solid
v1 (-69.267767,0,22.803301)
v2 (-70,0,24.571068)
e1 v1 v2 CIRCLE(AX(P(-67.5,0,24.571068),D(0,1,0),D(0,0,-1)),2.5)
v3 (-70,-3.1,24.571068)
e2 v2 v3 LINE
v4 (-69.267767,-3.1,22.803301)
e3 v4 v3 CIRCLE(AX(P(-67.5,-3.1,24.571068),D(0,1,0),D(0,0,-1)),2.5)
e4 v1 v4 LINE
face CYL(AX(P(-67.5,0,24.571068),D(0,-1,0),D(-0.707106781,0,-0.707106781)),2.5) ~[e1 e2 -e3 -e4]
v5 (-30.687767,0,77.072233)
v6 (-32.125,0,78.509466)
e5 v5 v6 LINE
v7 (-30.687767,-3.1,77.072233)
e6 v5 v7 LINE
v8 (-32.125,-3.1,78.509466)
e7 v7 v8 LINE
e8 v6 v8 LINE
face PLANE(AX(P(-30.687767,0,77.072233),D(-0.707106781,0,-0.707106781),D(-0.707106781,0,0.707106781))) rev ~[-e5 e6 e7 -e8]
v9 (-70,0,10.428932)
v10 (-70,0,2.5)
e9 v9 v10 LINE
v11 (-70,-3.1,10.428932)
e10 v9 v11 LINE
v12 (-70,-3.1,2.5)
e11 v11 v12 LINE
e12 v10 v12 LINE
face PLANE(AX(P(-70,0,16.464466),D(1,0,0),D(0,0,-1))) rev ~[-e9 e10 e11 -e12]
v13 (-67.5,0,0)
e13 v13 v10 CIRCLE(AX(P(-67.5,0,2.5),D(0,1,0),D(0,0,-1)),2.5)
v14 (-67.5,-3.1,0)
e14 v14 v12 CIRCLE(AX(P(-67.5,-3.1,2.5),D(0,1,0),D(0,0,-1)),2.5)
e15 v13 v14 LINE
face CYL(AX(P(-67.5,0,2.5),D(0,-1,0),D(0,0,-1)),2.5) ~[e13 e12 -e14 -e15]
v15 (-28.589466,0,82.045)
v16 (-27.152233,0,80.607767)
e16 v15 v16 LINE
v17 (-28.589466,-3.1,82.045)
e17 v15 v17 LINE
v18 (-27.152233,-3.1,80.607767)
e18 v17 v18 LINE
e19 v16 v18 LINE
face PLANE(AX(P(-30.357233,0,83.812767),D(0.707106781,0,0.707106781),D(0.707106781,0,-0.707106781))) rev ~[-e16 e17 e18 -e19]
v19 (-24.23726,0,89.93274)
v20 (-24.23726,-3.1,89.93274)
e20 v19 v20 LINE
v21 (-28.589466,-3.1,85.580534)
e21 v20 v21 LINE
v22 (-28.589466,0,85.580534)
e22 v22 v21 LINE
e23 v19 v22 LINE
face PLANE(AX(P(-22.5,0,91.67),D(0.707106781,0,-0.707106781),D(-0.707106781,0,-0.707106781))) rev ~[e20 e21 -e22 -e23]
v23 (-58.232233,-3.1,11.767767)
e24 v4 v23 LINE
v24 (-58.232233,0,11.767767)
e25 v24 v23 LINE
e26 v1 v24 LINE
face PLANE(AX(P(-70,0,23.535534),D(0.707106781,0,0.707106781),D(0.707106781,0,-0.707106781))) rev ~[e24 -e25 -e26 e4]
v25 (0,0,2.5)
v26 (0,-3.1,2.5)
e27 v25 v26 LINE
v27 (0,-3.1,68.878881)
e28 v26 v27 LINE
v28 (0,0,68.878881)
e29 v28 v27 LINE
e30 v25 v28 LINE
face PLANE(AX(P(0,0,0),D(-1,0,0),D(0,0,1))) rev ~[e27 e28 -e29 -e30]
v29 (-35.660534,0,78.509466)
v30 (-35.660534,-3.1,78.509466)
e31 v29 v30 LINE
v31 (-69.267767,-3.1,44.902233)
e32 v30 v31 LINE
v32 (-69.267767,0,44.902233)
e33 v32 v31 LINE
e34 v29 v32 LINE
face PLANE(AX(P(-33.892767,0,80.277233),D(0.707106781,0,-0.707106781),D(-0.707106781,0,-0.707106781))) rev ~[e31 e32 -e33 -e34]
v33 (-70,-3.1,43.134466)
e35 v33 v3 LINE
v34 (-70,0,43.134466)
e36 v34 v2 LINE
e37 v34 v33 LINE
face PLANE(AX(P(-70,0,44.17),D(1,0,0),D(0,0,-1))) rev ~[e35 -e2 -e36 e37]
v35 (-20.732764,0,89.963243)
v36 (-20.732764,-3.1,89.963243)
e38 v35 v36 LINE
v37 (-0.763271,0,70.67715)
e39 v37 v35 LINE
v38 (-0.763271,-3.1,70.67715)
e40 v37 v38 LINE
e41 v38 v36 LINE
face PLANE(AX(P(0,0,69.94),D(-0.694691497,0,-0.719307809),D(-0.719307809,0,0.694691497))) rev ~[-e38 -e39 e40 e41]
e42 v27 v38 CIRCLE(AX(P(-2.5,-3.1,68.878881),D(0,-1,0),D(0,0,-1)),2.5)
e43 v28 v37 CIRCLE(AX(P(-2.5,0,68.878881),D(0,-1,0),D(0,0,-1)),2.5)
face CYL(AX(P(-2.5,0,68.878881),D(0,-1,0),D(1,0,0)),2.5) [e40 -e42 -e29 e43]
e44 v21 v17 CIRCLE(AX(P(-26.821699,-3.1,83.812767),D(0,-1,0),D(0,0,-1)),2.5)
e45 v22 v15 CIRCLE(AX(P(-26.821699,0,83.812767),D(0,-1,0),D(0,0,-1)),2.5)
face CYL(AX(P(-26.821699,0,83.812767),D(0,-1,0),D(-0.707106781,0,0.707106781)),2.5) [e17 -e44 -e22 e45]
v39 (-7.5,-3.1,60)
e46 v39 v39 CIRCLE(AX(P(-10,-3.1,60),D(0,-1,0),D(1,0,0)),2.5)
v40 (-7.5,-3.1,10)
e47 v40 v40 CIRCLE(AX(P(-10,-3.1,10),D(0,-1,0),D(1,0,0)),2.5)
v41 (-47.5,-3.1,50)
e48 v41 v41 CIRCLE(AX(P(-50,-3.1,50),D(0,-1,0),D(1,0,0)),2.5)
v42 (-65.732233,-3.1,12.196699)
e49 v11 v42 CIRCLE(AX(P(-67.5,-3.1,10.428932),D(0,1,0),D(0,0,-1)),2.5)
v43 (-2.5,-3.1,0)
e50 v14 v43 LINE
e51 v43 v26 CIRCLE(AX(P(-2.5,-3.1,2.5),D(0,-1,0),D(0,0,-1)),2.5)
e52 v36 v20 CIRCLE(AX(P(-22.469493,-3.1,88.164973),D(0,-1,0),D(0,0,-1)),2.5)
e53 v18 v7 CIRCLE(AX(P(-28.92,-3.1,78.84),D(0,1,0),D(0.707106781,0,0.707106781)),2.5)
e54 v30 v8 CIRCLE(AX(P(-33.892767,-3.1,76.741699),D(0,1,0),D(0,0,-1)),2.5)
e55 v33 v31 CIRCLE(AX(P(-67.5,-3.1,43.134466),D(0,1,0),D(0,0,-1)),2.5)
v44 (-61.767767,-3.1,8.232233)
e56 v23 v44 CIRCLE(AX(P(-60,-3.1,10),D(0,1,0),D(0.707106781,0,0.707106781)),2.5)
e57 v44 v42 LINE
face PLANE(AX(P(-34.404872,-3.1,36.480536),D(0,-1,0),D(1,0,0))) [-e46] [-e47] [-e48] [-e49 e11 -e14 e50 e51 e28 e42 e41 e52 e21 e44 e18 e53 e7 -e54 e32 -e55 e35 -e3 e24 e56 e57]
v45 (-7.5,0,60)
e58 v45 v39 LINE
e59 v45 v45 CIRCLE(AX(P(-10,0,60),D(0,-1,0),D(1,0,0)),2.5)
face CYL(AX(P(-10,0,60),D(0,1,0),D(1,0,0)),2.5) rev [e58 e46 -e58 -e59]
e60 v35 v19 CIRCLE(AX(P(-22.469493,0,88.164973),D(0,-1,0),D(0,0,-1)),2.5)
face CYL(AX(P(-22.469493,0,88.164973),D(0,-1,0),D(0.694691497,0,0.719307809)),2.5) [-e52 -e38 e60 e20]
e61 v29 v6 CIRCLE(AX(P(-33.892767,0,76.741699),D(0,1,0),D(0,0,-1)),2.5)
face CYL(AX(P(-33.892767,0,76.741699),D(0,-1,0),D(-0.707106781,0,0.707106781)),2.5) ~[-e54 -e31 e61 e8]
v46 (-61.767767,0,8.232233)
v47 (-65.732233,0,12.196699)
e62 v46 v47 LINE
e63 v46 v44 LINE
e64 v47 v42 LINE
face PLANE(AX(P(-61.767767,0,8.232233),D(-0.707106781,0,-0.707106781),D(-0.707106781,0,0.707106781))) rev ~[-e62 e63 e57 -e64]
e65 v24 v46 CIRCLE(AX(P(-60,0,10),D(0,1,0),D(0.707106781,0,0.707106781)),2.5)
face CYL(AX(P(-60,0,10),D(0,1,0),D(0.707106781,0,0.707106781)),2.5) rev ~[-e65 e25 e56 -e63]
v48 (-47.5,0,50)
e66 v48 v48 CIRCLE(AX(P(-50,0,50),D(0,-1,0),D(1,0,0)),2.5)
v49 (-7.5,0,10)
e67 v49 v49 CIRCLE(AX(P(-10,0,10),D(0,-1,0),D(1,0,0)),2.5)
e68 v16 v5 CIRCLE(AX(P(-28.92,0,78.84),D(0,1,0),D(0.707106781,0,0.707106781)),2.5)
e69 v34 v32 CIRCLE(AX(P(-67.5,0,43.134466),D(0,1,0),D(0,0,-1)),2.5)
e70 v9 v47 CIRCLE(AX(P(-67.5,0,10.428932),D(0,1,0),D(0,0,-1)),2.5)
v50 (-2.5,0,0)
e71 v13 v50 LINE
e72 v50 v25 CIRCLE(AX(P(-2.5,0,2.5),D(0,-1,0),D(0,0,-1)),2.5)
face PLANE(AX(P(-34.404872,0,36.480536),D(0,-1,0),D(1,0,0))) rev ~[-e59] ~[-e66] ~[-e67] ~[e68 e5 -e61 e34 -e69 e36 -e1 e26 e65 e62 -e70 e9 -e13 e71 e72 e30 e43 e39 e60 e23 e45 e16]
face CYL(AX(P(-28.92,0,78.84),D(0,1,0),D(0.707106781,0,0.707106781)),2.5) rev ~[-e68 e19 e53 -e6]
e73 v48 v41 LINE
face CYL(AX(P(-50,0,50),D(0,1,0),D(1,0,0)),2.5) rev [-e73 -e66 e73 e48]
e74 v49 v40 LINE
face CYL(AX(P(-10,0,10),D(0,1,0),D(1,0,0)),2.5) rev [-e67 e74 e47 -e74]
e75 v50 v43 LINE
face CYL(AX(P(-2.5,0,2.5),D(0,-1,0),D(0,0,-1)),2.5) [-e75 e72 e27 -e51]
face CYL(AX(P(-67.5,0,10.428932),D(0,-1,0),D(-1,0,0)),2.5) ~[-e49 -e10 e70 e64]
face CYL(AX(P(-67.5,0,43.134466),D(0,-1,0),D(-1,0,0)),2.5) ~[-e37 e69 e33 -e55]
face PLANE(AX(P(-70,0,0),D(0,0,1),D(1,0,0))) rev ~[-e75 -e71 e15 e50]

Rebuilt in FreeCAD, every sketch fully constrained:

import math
import FreeCAD as App
import Part
import Sketcher

V = App.Vector
Q = App.Units.Quantity


def edges_at(feature, points):
    """Names of the edges that pass closest to the given points."""
    edges = feature.Shape.Edges
    near = lambda p: min(range(len(edges)), key=lambda i: edges[i].distToShape(Part.Vertex(*p))[0])
    return sorted({f"Edge{near(p) + 1}" for p in points})

doc = App.newDocument("Part")
body = doc.addObject("PartDesign::Body", "Body")

# Sketch on XZ plane
sketch1 = body.newObject("Sketcher::SketchObject", "Sketch")
sketch1.AttachmentSupport = (doc.getObject("XZ_Plane"), [""])
sketch1.MapMode = "FlatFace"
sketch1.addGeometry([
    Part.LineSegment(V(-70, 0, 0), V(0, 0, 0)),  # 0
    Part.LineSegment(V(0, 0, 0), V(0, 69.9, 0)),  # 1
    Part.LineSegment(V(0, 69.9, 0), V(-22.5, 91.7, 0)),  # 2
    Part.LineSegment(V(-22.5, 91.7, 0), V(-30.4, 83.8, 0)),  # 3
    Part.LineSegment(V(-30.4, 83.8, 0), V(-27.2, 80.6, 0)),  # 4
    Part.ArcOfCircle(Part.Circle(V(-28.9, 78.8, 0), V(0, 0, 1), 2.5), math.radians(-135), math.radians(45)),  # 5
    Part.LineSegment(V(-30.7, 77.1, 0), V(-33.9, 80.3, 0)),  # 6
    Part.LineSegment(V(-33.9, 80.3, 0), V(-70, 44.2, 0)),  # 7
    Part.LineSegment(V(-70, 44.2, 0), V(-70, 23.5, 0)),  # 8
    Part.LineSegment(V(-70, 23.5, 0), V(-58.2, 11.8, 0)),  # 9
    Part.ArcOfCircle(Part.Circle(V(-60, 10, 0), V(0, 0, 1), 2.5), math.radians(-135), math.radians(45)),  # 10
    Part.LineSegment(V(-61.8, 8.2, 0), V(-70, 16.5, 0)),  # 11
    Part.LineSegment(V(-70, 16.5, 0), V(-70, 0, 0)),  # 12
    Part.Circle(V(-10, 10, 0), V(0, 0, 1), 2.5),  # 13
    Part.Circle(V(-50, 50, 0), V(0, 0, 1), 2.5),  # 14
    Part.Circle(V(-10, 60, 0), V(0, 0, 1), 2.5),  # 15
], False)
sketch1.addConstraint([
    Sketcher.Constraint("Coincident", 0, 2, 1, 1),
    Sketcher.Constraint("Coincident", 1, 2, 2, 1),
    Sketcher.Constraint("Coincident", 2, 2, 3, 1),
    Sketcher.Constraint("Coincident", 3, 2, 4, 1),
    Sketcher.Constraint("Tangent", 4, 2, 5, 2),
    Sketcher.Constraint("Tangent", 5, 1, 6, 1),
    Sketcher.Constraint("Coincident", 6, 2, 7, 1),
    Sketcher.Constraint("Coincident", 7, 2, 8, 1),
    Sketcher.Constraint("Coincident", 8, 2, 9, 1),
    Sketcher.Constraint("Tangent", 9, 2, 10, 2),
    Sketcher.Constraint("Tangent", 10, 1, 11, 1),
    Sketcher.Constraint("Coincident", 11, 2, 12, 1),
    Sketcher.Constraint("Coincident", 12, 2, 0, 1),
    Sketcher.Constraint("Horizontal", 0),
    Sketcher.Constraint("Vertical", 1),
    Sketcher.Constraint("Vertical", 8),
    Sketcher.Constraint("Vertical", 12),
    Sketcher.Constraint("Coincident", 0, 2, -1, 1),
    Sketcher.Constraint("Equal", 5, 10),
    Sketcher.Constraint("Equal", 10, 13),
    Sketcher.Constraint("Equal", 13, 14),
    Sketcher.Constraint("Equal", 14, 15),
    Sketcher.Constraint("Perpendicular", 3, 4),
    Sketcher.Constraint("Parallel", 4, 6),
    Sketcher.Constraint("Perpendicular", 6, 7),
    Sketcher.Constraint("Perpendicular", 7, 9),
    Sketcher.Constraint("Parallel", 9, 11),
    Sketcher.Constraint("Horizontal", 10, 3, 13, 3),
    Sketcher.Constraint("Vertical", 13, 3, 15, 3),
    Sketcher.Constraint("Vertical", 8, 2, 11, 2),
    Sketcher.Constraint("Equal", 4, 6),
    Sketcher.Constraint("Diameter", 13, Q("5 mm")),
    Sketcher.Constraint("DistanceX", 0, 1, 0, 2, Q("70 mm")),
    Sketcher.Constraint("Angle", 3, Q("-135 deg")),
    Sketcher.Constraint("DistanceX", 10, 3, -1, 1, Q("60 mm")),
    Sketcher.Constraint("DistanceY", -1, 1, 10, 3, Q("10 mm")),
    Sketcher.Constraint("DistanceX", 13, 3, -1, 1, Q("10 mm")),
    Sketcher.Constraint("DistanceX", 14, 3, -1, 1, Q("50 mm")),
    Sketcher.Constraint("DistanceY", -1, 1, 14, 3, Q("50 mm")),
    Sketcher.Constraint("DistanceY", -1, 1, 15, 3, Q("60 mm")),
    Sketcher.Constraint("DistanceY", 1, 1, 1, 2, Q("69.94 mm")),
    Sketcher.Constraint("DistanceX", 2, 2, -1, 1, Q("22.5 mm")),
    Sketcher.Constraint("DistanceY", 1, 2, 5, 3, Q("8.9 mm")),
    Sketcher.Constraint("DistanceX", 5, 3, -1, 1, Q("28.92 mm")),
    Sketcher.Constraint("DistanceY", -1, 1, 2, 2, Q("91.67 mm")),
])
pad1 = body.newObject("PartDesign::Pad", "Pad")
pad1.Profile = sketch1
pad1.Length = 3.1
doc.recompute()

fillet = body.newObject("PartDesign::Fillet", "Fillet")
fillet.Base = (pad1, edges_at(pad1, [
    (-30.357, -1.55, 83.813),
    (-33.893, -1.55, 80.277),
    (-70, -1.55, 23.536),
    (-70, -1.55, 16.464),
    (-70, -1.55, 0),
    (-22.5, -1.55, 91.67),
    (0, -1.55, 0),
    (0, -1.55, 69.94),
    (-70, -1.55, 44.17),
]))
fillet.Radius = 2.5

doc.recompute()
